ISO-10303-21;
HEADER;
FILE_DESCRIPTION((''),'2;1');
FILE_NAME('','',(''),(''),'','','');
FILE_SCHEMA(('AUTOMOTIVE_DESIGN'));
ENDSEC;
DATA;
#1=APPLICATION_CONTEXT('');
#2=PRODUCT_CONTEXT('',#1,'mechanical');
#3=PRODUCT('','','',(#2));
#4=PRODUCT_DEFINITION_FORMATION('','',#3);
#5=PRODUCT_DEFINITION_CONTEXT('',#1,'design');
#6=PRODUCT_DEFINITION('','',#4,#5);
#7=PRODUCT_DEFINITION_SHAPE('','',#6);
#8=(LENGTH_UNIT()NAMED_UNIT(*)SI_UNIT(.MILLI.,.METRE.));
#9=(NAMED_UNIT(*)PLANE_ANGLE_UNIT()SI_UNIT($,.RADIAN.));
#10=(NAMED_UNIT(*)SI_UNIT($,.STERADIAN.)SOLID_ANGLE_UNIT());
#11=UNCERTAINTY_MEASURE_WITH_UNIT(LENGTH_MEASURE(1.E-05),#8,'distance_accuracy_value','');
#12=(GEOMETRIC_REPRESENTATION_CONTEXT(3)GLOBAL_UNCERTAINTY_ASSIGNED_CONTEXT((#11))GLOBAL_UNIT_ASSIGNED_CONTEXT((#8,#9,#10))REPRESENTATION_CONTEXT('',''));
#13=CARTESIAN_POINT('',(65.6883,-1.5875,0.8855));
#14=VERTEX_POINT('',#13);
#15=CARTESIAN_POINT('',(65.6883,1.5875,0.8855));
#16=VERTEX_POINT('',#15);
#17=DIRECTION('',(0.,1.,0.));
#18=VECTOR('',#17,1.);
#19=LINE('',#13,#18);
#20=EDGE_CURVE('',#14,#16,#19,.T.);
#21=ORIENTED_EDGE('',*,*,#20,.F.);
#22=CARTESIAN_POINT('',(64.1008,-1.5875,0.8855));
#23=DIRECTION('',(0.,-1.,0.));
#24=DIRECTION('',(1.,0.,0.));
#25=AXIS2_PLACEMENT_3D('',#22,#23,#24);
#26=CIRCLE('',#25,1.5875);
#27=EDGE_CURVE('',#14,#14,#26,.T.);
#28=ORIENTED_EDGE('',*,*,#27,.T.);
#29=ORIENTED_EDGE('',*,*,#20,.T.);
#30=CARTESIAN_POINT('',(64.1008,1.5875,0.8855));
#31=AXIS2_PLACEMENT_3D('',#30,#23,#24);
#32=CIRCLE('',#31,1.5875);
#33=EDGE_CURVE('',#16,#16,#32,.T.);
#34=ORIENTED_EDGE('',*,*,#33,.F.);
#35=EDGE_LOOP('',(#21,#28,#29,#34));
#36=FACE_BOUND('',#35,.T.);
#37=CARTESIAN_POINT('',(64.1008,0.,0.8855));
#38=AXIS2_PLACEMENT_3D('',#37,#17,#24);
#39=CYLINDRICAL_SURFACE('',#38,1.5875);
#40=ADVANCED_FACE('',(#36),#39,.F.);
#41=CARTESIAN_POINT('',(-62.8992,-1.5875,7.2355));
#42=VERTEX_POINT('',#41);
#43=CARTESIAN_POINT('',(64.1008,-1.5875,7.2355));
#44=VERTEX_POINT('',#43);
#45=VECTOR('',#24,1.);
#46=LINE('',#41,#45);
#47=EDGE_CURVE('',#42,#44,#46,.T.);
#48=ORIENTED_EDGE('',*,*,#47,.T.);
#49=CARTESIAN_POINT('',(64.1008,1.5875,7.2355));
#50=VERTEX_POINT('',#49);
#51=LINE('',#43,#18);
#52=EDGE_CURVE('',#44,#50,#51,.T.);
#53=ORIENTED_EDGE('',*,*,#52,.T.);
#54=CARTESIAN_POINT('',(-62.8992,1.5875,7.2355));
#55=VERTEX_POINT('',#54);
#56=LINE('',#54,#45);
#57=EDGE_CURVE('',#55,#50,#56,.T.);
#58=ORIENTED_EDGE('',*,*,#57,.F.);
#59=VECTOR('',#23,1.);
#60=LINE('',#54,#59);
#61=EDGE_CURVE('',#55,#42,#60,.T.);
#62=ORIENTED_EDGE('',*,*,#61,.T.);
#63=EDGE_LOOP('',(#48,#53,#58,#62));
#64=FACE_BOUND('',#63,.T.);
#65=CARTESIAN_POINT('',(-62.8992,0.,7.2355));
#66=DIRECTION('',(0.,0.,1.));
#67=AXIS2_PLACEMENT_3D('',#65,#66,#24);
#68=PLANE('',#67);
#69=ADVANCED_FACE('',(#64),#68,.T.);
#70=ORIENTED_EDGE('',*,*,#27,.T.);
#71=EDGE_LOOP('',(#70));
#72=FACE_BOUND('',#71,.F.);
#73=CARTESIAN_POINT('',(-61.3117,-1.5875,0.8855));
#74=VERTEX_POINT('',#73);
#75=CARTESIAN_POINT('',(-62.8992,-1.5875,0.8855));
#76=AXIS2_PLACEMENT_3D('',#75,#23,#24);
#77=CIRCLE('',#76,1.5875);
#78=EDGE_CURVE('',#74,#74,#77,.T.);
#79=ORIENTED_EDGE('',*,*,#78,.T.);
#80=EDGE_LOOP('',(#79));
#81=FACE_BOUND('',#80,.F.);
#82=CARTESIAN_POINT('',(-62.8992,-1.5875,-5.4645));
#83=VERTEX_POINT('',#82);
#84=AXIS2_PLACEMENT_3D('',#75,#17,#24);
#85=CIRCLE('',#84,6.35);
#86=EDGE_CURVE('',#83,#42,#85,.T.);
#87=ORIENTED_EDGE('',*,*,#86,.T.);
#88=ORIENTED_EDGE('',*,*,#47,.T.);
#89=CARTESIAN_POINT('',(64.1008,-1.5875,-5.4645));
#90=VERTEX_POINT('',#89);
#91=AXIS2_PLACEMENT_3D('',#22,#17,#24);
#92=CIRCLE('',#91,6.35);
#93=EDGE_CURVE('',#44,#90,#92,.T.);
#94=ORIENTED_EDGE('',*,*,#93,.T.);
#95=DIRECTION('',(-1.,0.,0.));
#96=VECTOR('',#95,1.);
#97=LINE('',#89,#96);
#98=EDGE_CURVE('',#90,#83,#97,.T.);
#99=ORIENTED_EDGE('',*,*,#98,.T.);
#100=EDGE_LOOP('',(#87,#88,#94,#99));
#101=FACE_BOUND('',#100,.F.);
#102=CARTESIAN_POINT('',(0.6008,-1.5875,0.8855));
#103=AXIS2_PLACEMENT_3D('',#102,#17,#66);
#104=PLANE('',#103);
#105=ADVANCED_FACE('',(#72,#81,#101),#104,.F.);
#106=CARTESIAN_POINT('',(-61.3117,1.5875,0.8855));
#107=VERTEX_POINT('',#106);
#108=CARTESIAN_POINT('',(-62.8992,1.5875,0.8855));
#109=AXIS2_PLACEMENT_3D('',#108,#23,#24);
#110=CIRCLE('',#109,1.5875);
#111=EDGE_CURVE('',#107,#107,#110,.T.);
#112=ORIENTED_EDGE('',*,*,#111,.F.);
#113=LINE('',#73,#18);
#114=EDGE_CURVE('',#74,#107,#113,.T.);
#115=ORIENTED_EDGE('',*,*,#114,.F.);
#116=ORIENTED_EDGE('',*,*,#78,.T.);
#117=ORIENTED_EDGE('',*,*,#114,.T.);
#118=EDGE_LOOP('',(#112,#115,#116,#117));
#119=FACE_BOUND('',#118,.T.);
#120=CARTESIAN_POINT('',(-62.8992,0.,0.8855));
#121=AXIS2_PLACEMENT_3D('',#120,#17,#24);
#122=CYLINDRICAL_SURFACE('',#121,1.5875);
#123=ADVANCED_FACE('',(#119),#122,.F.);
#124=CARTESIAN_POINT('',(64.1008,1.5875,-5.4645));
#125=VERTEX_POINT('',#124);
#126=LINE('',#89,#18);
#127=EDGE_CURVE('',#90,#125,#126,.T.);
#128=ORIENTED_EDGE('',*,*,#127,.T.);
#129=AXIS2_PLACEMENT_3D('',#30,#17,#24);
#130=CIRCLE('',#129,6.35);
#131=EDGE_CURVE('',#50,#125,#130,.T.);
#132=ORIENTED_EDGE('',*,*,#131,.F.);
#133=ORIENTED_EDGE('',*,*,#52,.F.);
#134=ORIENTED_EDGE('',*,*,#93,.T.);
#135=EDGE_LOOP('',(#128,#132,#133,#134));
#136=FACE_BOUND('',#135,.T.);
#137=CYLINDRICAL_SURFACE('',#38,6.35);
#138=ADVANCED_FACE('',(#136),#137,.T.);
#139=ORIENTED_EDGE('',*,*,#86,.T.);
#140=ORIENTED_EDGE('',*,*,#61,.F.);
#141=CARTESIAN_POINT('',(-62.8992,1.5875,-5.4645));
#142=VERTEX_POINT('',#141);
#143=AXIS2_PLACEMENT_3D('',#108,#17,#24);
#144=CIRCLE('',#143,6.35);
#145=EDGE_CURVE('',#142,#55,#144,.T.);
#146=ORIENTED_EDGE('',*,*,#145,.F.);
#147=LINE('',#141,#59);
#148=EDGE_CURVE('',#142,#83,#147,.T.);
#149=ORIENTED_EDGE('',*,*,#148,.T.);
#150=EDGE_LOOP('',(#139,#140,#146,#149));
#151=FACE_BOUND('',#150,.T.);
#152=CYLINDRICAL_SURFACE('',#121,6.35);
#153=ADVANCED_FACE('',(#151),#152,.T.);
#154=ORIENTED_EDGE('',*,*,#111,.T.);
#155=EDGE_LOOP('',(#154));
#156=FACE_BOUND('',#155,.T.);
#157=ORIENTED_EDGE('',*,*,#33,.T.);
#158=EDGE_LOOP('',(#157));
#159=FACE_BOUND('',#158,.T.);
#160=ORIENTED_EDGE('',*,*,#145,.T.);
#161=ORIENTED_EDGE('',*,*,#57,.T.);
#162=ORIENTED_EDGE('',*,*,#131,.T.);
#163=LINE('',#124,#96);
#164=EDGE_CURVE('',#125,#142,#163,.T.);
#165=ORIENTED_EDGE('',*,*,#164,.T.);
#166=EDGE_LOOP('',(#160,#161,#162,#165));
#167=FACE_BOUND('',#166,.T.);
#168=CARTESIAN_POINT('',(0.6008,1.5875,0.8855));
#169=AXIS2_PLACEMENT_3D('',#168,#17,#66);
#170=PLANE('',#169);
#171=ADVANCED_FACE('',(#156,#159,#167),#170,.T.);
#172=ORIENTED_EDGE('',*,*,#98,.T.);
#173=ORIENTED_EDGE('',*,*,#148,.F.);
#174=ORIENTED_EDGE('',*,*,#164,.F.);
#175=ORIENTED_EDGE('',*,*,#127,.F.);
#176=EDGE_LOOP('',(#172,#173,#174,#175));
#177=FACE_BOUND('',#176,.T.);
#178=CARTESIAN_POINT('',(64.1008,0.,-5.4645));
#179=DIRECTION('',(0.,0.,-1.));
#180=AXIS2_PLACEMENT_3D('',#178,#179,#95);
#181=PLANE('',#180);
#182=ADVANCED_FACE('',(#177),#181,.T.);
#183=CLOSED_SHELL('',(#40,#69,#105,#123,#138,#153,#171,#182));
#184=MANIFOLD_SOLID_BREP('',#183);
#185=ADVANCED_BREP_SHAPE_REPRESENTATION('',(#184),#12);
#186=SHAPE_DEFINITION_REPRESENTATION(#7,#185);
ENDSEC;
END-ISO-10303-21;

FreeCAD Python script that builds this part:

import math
import FreeCAD as App
import Part
import Sketcher
Q = App.Units.Quantity

doc = App.newDocument("Part")
params = doc.addObject("Spreadsheet::Sheet", "Params")
for row, (alias, value) in enumerate([
    ("sketch1_width", "5 in"),
    ("sketch1_radius", "0.25 in"),
    ("sketch1_diameter", "0.125 in"),
    ("pad1_length", "0.125 in"),
], start=1):
    params.set(f"A{row}", alias)
    params.set(f"B{row}", "=" + value)
    params.setAlias(f"B{row}", alias)

body = doc.addObject("PartDesign::Body", "Body")

sketch1 = body.newObject("Sketcher::SketchObject", "Sketch")
sketch1.AttachmentSupport = (doc.getObject("XZ_Plane"), [""])
sketch1.MapMode = "FlatFace"
sketch1.addGeometry([
    Part.LineSegment(App.Vector(64.1008, 7.2355, 0), App.Vector(-62.8992, 7.2355, 0)),
    Part.ArcOfCircle(Part.Circle(App.Vector(-62.8992, 0.8855, 0), App.Vector(0, 0, 1), 6.35), math.radians(90), math.radians(270)),
    Part.LineSegment(App.Vector(-62.8992, -5.4645, 0), App.Vector(64.1008, -5.4645, 0)),
    Part.ArcOfCircle(Part.Circle(App.Vector(64.1008, 0.8855, 0), App.Vector(0, 0, 1), 6.35), math.radians(-90), math.radians(90)),
    Part.Circle(App.Vector(-62.8992, 0.8855, 0), App.Vector(0, 0, 1), 1.5875),
    Part.Circle(App.Vector(64.1008, 0.8855, 0), App.Vector(0, 0, 1), 1.5875),
], False)
sketch1.addConstraint([
    Sketcher.Constraint("Tangent", 0, 2, 1, 1),
    Sketcher.Constraint("Tangent", 1, 2, 2, 1),
    Sketcher.Constraint("Tangent", 2, 2, 3, 1),
    Sketcher.Constraint("Tangent", 3, 2, 0, 1),
    Sketcher.Constraint("Horizontal", 0),
    Sketcher.Constraint("Horizontal", 2),
    Sketcher.Constraint("Coincident", 4, 3, 1, 3),
    Sketcher.Constraint("Coincident", 5, 3, 3, 3),
    Sketcher.Constraint("Equal", 4, 5),
    Sketcher.Constraint("DistanceX", 0, 2, 0, 1, Q("5 in")),
    Sketcher.Constraint("Radius", 1, Q("0.25 in")),
    Sketcher.Constraint("Diameter", 4, Q("0.125 in")),
    Sketcher.Constraint("DistanceX", 1, 3, -1, 1, 62.8992),
    Sketcher.Constraint("DistanceY", -1, 1, 1, 3, 0.8855),
])
sketch1.setExpression("Constraints[9]", "Params.sketch1_width")
sketch1.setExpression("Constraints[10]", "Params.sketch1_radius")
sketch1.setExpression("Constraints[11]", "Params.sketch1_diameter")
pad1 = body.newObject("PartDesign::Pad", "Pad")
pad1.Profile = sketch1
pad1.setExpression("Length", "Params.pad1_length")
pad1.Midplane = True

doc.recompute()
